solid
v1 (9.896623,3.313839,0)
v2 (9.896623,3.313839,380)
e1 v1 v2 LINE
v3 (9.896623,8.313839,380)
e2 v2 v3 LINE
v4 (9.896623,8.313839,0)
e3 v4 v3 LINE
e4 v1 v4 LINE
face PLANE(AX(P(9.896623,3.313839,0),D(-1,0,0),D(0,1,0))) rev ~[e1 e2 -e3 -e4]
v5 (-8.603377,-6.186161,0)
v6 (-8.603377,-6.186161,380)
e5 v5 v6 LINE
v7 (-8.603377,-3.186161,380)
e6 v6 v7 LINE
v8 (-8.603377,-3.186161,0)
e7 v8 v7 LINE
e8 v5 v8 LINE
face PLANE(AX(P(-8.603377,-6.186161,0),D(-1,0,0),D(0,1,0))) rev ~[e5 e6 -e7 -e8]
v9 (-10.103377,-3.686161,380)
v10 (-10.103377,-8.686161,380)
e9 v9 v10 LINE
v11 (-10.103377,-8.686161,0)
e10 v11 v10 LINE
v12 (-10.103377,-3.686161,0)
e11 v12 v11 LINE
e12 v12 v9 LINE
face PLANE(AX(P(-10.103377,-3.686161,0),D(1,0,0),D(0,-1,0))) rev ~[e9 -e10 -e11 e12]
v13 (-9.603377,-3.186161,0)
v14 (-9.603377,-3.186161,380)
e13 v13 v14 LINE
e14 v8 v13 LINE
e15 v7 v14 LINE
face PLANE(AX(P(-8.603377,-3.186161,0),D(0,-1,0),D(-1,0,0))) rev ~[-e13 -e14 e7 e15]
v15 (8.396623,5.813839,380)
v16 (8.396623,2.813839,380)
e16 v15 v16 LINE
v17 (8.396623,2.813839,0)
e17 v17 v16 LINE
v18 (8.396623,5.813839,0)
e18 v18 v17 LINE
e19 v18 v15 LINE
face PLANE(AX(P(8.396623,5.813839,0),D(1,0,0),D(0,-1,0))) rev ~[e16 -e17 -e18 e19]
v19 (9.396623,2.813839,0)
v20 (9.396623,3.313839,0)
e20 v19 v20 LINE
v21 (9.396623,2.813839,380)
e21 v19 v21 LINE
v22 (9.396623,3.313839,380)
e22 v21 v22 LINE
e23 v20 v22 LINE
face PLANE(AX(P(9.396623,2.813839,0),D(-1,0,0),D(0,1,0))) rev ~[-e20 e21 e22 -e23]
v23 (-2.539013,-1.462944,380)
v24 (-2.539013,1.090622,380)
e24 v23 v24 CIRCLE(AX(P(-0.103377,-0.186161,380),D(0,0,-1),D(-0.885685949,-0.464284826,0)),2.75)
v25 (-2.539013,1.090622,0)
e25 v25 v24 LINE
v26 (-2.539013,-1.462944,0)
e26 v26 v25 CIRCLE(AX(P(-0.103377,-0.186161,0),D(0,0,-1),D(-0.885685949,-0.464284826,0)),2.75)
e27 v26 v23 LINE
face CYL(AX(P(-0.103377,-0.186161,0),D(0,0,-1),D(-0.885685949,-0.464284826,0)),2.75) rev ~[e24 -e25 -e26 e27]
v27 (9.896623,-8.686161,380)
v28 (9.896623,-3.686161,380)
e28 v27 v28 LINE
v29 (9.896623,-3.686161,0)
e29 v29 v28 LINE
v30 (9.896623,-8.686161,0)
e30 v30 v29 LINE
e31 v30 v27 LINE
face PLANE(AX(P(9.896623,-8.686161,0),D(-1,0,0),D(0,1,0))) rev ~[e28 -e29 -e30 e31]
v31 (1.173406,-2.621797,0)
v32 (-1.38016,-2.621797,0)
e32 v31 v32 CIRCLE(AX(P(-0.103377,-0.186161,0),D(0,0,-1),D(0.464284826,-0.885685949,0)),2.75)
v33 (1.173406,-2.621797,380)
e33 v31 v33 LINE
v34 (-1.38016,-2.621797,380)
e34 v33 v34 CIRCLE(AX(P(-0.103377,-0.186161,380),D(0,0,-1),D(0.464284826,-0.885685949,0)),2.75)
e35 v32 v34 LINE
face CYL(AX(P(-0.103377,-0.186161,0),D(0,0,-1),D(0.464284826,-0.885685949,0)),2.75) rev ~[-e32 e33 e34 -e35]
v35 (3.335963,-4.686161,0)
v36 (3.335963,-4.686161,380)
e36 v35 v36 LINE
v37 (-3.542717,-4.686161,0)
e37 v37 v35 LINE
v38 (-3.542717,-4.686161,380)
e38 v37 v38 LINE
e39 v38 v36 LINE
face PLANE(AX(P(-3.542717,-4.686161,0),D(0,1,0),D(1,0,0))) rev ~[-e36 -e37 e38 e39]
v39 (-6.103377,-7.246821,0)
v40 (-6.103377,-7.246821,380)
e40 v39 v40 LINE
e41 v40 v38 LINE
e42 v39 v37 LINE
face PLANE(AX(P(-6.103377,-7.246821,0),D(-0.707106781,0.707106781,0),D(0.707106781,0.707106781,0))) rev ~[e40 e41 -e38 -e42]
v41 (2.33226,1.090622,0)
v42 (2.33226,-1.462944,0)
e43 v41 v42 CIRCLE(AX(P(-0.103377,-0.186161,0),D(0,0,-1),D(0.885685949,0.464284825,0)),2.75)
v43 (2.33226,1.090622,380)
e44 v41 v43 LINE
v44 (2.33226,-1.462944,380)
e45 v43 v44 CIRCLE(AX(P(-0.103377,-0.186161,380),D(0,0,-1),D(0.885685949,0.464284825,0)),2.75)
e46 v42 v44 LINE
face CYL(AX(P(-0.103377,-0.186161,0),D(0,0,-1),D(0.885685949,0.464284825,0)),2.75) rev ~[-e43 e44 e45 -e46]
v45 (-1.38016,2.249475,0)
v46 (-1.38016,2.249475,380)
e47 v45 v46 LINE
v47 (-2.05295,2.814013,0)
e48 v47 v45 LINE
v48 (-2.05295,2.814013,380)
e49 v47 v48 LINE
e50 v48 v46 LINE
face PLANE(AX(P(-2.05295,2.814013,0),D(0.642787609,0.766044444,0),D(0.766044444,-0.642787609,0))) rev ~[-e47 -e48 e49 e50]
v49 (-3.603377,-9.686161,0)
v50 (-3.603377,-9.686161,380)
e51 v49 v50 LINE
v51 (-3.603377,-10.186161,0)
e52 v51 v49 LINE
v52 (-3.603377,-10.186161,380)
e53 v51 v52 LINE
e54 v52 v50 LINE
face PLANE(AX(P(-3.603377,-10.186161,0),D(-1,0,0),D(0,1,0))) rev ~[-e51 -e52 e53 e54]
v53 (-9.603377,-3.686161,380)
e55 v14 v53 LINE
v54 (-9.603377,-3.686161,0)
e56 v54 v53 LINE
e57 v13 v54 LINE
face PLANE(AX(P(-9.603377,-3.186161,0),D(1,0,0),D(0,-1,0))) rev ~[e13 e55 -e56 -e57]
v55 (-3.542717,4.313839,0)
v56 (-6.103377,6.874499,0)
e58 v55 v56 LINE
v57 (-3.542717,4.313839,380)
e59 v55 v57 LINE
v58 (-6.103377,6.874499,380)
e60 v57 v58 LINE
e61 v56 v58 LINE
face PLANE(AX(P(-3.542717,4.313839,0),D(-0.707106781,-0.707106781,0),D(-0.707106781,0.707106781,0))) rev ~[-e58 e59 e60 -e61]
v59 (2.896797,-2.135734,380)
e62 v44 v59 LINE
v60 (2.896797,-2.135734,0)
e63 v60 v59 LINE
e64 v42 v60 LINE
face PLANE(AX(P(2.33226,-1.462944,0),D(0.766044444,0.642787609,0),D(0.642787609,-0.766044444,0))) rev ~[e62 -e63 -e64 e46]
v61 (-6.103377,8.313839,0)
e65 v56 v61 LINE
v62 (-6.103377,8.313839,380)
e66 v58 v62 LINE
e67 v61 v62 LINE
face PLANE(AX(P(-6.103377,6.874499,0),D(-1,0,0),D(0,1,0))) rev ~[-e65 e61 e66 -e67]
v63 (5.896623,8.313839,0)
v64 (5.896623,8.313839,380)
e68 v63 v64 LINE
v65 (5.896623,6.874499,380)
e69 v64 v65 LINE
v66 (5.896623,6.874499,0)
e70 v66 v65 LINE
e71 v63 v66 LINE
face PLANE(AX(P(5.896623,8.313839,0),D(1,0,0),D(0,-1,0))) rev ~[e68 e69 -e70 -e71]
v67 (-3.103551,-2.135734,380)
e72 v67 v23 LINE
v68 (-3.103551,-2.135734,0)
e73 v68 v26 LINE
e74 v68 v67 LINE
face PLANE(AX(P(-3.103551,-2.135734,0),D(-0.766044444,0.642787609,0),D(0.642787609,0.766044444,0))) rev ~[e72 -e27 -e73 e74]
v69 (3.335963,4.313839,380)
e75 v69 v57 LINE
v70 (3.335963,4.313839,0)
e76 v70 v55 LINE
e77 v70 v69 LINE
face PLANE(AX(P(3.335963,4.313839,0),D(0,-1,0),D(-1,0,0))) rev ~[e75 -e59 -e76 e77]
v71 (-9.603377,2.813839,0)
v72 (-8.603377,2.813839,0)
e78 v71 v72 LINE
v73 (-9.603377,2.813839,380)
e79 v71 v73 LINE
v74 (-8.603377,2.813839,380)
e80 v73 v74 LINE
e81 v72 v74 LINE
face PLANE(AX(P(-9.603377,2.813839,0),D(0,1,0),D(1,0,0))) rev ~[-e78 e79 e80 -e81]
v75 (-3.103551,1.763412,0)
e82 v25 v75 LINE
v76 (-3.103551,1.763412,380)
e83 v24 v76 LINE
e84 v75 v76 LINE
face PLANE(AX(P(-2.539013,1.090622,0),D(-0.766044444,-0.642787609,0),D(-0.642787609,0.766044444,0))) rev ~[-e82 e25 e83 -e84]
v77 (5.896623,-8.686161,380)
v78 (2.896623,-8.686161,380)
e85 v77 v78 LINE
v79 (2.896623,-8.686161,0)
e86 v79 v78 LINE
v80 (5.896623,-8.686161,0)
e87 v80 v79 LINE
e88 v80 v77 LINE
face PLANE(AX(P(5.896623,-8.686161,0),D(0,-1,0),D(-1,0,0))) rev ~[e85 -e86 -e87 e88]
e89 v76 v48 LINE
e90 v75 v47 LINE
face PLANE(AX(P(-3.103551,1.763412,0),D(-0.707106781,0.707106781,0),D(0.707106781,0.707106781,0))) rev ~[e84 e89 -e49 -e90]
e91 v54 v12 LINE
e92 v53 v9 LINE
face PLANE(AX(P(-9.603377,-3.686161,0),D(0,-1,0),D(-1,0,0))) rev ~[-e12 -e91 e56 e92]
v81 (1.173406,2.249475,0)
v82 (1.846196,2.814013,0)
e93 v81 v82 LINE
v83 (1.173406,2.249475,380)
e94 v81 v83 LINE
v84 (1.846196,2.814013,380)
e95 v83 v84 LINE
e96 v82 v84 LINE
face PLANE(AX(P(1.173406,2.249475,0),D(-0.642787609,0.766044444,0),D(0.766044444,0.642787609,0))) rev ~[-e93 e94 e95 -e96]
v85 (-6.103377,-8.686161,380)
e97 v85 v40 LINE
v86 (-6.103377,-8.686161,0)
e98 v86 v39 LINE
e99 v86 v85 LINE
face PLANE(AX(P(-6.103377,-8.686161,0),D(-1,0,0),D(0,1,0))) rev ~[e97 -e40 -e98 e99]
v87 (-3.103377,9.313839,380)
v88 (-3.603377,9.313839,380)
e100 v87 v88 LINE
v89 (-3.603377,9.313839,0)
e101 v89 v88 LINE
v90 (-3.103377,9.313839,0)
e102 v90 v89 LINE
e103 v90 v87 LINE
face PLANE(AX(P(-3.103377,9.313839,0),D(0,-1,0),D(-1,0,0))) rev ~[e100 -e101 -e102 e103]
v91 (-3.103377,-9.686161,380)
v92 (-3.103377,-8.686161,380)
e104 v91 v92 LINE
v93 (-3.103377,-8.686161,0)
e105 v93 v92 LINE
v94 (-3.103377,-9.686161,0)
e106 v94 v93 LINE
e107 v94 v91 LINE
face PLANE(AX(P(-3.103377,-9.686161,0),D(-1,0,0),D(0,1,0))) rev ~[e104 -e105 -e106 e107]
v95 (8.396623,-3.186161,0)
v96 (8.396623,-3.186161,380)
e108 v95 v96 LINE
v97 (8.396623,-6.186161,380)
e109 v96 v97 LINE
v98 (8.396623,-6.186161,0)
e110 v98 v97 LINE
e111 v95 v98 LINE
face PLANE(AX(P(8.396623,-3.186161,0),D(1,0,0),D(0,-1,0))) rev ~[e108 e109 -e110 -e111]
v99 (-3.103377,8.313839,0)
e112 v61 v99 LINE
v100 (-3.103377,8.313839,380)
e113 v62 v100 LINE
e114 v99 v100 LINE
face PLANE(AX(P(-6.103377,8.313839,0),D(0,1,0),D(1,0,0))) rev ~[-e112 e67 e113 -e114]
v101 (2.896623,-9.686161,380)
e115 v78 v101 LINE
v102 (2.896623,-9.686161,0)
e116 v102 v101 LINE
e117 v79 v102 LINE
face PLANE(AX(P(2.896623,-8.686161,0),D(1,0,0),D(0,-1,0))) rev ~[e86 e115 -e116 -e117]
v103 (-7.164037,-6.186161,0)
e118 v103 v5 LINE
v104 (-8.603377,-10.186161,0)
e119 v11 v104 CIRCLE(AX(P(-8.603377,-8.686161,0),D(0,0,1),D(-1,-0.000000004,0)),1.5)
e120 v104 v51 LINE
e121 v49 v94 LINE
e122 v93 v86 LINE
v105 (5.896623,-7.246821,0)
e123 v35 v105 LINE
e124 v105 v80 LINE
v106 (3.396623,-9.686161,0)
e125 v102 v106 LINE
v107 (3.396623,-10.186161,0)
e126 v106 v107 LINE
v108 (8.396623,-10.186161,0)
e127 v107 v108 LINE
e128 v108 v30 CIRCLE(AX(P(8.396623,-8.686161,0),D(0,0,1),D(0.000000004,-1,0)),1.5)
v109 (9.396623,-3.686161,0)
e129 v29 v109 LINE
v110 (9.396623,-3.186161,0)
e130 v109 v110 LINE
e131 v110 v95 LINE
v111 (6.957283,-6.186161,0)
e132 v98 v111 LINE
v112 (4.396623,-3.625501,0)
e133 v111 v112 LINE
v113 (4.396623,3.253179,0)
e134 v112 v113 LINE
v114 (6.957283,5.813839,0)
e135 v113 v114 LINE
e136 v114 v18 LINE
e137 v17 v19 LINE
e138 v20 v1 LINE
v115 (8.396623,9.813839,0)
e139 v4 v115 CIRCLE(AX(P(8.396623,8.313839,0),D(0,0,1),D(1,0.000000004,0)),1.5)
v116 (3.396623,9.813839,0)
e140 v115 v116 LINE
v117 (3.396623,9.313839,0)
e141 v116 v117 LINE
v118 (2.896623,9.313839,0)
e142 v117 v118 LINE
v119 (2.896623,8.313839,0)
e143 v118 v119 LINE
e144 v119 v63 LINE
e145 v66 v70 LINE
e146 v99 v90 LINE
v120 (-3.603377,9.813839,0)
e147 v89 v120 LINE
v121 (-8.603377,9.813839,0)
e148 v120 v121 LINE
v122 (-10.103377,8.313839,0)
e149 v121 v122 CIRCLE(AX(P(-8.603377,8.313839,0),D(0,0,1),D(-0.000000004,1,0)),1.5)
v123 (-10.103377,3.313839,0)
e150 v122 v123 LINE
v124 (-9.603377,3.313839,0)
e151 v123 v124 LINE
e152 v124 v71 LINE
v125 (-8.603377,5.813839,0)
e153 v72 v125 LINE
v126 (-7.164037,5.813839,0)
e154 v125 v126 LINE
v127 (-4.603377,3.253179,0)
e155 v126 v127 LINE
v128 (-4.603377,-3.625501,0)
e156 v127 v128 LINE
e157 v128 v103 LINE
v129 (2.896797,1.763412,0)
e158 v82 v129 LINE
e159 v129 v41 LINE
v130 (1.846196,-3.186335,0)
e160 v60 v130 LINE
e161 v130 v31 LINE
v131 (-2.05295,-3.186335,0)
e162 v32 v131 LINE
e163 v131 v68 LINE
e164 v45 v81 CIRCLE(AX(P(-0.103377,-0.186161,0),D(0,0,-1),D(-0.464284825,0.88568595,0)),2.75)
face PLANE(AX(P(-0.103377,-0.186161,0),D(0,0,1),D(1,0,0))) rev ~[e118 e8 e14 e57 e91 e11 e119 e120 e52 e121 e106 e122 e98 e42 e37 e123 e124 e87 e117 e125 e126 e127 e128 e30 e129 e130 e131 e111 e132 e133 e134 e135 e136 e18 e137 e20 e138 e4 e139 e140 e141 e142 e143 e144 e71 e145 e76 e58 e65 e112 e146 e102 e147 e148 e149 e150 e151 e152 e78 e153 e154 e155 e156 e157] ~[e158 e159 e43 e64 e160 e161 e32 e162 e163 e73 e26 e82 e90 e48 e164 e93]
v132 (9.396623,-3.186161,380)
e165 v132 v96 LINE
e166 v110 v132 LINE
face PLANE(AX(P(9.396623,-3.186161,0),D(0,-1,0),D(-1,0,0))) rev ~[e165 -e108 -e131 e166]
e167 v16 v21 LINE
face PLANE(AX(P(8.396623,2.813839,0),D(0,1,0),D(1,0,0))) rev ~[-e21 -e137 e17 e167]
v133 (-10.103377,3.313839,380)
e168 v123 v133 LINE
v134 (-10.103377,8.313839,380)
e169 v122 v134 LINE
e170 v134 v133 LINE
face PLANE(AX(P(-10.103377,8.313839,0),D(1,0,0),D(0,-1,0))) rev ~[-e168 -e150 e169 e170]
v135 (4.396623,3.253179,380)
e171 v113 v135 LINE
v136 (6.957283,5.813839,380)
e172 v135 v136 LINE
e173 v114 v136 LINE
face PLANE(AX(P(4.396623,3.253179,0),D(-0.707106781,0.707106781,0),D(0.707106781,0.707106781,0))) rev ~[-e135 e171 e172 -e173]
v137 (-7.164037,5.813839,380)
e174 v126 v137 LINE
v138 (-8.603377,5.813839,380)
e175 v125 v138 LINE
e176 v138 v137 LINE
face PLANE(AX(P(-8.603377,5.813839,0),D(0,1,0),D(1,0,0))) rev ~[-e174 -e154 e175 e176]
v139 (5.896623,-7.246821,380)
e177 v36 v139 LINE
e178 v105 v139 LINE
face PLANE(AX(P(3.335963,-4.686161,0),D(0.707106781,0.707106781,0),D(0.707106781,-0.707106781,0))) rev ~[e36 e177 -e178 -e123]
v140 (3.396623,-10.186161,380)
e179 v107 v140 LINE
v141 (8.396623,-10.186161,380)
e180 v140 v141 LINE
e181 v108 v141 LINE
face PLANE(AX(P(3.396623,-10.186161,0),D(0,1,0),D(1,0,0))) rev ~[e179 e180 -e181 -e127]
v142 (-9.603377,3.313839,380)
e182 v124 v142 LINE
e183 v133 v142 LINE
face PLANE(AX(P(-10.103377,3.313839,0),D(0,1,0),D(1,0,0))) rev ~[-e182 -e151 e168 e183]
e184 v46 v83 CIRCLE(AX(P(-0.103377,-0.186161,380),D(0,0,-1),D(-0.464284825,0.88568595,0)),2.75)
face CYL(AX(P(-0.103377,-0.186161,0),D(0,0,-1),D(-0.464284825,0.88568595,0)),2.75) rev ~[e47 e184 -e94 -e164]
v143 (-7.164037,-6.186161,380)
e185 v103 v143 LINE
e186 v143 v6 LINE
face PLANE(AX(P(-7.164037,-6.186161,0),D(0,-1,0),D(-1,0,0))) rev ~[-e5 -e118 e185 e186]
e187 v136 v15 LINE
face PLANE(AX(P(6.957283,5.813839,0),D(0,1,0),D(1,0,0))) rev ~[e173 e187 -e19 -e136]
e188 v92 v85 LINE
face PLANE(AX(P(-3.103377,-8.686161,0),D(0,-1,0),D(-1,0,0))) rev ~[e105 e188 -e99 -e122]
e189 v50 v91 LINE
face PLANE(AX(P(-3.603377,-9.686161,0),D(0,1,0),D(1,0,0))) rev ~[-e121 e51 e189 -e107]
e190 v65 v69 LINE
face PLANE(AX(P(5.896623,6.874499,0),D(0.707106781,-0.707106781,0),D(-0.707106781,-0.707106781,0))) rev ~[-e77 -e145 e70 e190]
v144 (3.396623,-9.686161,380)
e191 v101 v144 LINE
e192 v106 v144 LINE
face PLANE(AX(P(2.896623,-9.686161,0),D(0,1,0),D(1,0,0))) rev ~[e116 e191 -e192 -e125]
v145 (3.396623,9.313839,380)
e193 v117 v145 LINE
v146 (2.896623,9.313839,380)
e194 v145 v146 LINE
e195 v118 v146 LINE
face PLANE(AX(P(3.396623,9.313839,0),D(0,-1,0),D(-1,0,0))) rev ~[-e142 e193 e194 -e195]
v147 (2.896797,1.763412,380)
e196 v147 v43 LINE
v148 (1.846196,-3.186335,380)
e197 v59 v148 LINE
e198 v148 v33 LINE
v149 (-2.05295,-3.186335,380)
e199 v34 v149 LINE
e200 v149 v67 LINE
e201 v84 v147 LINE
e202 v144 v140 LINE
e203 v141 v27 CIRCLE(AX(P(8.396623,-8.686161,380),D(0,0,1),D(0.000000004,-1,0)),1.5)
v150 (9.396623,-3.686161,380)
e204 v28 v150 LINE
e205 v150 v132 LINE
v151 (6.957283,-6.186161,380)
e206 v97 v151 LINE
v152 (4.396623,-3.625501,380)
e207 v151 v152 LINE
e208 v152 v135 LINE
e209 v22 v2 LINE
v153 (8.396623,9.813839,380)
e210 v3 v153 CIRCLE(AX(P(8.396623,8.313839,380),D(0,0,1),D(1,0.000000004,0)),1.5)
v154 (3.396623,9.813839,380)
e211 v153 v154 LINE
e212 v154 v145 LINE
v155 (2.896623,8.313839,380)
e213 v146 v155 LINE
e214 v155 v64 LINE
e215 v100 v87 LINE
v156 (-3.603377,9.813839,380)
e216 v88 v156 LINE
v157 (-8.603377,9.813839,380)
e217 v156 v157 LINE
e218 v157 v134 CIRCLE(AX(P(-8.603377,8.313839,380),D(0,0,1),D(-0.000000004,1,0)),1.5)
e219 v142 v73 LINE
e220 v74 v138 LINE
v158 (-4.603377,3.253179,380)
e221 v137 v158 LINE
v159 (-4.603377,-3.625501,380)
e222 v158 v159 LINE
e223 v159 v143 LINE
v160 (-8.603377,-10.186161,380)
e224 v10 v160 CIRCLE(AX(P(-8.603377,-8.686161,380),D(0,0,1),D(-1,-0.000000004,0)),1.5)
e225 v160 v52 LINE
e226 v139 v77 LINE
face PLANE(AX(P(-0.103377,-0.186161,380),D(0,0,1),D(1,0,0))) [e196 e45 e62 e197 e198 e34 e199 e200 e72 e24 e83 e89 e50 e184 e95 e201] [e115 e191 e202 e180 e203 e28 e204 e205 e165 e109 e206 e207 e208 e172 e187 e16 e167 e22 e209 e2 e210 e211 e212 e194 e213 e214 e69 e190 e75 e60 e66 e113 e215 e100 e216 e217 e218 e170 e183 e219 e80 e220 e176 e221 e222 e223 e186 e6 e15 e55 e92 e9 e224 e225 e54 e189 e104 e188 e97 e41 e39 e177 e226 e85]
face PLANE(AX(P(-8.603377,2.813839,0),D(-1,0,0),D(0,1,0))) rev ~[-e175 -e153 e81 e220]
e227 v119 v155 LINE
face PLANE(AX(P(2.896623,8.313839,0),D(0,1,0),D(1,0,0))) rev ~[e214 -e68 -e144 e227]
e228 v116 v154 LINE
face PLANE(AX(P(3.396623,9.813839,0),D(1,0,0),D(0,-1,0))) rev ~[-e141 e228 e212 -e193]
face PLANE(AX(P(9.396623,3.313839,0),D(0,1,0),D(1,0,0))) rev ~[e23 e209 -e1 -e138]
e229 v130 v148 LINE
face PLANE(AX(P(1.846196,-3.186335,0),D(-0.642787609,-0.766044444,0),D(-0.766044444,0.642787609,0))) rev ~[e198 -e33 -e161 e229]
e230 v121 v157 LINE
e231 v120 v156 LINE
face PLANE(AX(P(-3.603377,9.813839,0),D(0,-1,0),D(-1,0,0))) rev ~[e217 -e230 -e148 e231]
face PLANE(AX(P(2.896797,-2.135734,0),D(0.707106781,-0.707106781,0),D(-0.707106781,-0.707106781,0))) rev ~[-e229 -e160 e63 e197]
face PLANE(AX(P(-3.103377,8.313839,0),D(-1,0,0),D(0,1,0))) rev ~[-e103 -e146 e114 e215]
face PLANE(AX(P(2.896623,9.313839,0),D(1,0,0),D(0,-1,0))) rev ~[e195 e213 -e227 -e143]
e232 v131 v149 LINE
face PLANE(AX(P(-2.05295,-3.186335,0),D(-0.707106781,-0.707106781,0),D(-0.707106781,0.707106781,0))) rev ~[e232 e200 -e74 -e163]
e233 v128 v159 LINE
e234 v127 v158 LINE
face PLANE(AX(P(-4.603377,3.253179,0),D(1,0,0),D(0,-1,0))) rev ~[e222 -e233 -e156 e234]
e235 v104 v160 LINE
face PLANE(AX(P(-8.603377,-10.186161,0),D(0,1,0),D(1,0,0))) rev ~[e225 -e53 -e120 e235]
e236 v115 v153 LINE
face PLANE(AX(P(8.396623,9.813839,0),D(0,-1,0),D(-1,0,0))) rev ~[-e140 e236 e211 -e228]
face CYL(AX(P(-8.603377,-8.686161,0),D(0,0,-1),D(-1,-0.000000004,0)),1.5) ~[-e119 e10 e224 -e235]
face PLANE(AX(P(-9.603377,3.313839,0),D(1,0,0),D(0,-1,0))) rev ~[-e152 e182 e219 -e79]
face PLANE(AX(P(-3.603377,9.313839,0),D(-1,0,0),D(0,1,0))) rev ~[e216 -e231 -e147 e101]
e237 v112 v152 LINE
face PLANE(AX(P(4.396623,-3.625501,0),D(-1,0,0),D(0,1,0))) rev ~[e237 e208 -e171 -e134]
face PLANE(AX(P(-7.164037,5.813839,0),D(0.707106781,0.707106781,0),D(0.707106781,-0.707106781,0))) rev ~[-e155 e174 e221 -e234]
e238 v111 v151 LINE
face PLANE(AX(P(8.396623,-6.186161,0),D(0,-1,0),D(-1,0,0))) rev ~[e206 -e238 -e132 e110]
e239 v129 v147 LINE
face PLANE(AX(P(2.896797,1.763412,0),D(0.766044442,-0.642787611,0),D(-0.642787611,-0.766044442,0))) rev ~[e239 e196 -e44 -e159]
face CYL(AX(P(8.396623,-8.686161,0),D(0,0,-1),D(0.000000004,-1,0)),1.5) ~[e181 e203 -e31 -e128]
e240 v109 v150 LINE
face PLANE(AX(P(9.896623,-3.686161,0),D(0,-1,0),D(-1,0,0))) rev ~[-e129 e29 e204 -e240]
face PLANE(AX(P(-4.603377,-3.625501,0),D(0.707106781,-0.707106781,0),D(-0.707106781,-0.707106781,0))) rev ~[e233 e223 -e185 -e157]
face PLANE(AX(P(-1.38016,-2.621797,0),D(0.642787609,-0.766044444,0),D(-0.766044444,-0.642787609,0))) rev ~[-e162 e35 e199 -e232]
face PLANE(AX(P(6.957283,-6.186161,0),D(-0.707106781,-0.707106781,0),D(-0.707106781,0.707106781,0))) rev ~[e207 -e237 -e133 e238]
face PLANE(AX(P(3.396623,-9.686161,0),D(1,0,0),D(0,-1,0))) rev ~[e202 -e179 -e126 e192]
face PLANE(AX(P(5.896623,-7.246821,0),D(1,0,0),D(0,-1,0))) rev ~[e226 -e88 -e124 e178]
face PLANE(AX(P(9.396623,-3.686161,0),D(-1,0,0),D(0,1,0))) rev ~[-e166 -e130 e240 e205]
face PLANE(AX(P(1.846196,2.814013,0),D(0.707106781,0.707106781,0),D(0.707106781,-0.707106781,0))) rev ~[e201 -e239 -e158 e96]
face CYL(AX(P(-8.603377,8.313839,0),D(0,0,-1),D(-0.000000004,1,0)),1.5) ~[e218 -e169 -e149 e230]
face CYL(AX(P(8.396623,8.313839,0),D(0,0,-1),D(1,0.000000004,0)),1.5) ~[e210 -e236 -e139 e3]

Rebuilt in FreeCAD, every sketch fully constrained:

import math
import FreeCAD as App
import Part
import Sketcher
from FreeCAD import Vector
Q = App.Units.Quantity

doc = App.newDocument("Part")
body = doc.addObject("PartDesign::Body", "Body")

# Sketch on XY plane
sketch1 = doc.addObject("Sketcher::SketchObject", "Sketch")
body.addObject(sketch1)
sketch1.AttachmentSupport = (doc.XY_Plane, [""])
sketch1.MapMode = "FlatFace"
sketch1.addGeometry(Part.LineSegment(Vector(9.9, -8.7, 0), Vector(9.9, -3.7, 0)), False)
sketch1.addGeometry(Part.LineSegment(Vector(9.9, -3.7, 0), Vector(9.4, -3.7, 0)), False)
sketch1.addGeometry(Part.LineSegment(Vector(9.4, -3.7, 0), Vector(9.4, -3.2, 0)), False)
sketch1.addGeometry(Part.LineSegment(Vector(9.4, -3.2, 0), Vector(8.4, -3.2, 0)), False)
sketch1.addGeometry(Part.LineSegment(Vector(8.4, -3.2, 0), Vector(8.4, -6.2, 0)), False)
sketch1.addGeometry(Part.LineSegment(Vector(8.4, -6.2, 0), Vector(7, -6.2, 0)), False)
sketch1.addGeometry(Part.LineSegment(Vector(7, -6.2, 0), Vector(4.4, -3.6, 0)), False)
sketch1.addGeometry(Part.LineSegment(Vector(4.4, -3.6, 0), Vector(4.4, 3.3, 0)), False)
sketch1.addGeometry(Part.LineSegment(Vector(4.4, 3.3, 0), Vector(7, 5.8, 0)), False)
sketch1.addGeometry(Part.LineSegment(Vector(7, 5.8, 0), Vector(8.4, 5.8, 0)), False)
sketch1.addGeometry(Part.LineSegment(Vector(8.4, 5.8, 0), Vector(8.4, 2.8, 0)), False)
sketch1.addGeometry(Part.LineSegment(Vector(8.4, 2.8, 0), Vector(9.4, 2.8, 0)), False)
sketch1.addGeometry(Part.LineSegment(Vector(9.4, 2.8, 0), Vector(9.4, 3.3, 0)), False)
sketch1.addGeometry(Part.LineSegment(Vector(9.4, 3.3, 0), Vector(9.9, 3.3, 0)), False)
sketch1.addGeometry(Part.LineSegment(Vector(9.9, 3.3, 0), Vector(9.9, 8.3, 0)), False)
sketch1.addGeometry(Part.ArcOfCircle(Part.Circle(Vector(8.4, 8.3, 0), Vector(0, 0, 1), 1.5), math.radians(0), math.radians(90)), False)
sketch1.addGeometry(Part.LineSegment(Vector(8.4, 9.8, 0), Vector(3.4, 9.8, 0)), False)
sketch1.addGeometry(Part.LineSegment(Vector(3.4, 9.8, 0), Vector(3.4, 9.3, 0)), False)
sketch1.addGeometry(Part.LineSegment(Vector(3.4, 9.3, 0), Vector(2.9, 9.3, 0)), False)
sketch1.addGeometry(Part.LineSegment(Vector(2.9, 9.3, 0), Vector(2.9, 8.3, 0)), False)
sketch1.addGeometry(Part.LineSegment(Vector(2.9, 8.3, 0), Vector(5.9, 8.3, 0)), False)
sketch1.addGeometry(Part.LineSegment(Vector(5.9, 8.3, 0), Vector(5.9, 6.9, 0)), False)
sketch1.addGeometry(Part.LineSegment(Vector(5.9, 6.9, 0), Vector(3.3, 4.3, 0)), False)
sketch1.addGeometry(Part.LineSegment(Vector(3.3, 4.3, 0), Vector(-3.5, 4.3, 0)), False)
sketch1.addGeometry(Part.LineSegment(Vector(-3.5, 4.3, 0), Vector(-6.1, 6.9, 0)), False)
sketch1.addGeometry(Part.LineSegment(Vector(-6.1, 6.9, 0), Vector(-6.1, 8.3, 0)), False)
sketch1.addGeometry(Part.LineSegment(Vector(-6.1, 8.3, 0), Vector(-3.1, 8.3, 0)), False)
sketch1.addGeometry(Part.LineSegment(Vector(-3.1, 8.3, 0), Vector(-3.1, 9.3, 0)), False)
sketch1.addGeometry(Part.LineSegment(Vector(-3.1, 9.3, 0), Vector(-3.6, 9.3, 0)), False)
sketch1.addGeometry(Part.LineSegment(Vector(-3.6, 9.3, 0), Vector(-3.6, 9.8, 0)), False)
sketch1.addGeometry(Part.LineSegment(Vector(-3.6, 9.8, 0), Vector(-8.6, 9.8, 0)), False)
sketch1.addGeometry(Part.ArcOfCircle(Part.Circle(Vector(-8.6, 8.3, 0), Vector(0, 0, 1), 1.5), math.radians(90), math.radians(180)), False)
sketch1.addGeometry(Part.LineSegment(Vector(-10.1, 8.3, 0), Vector(-10.1, 3.3, 0)), False)
sketch1.addGeometry(Part.LineSegment(Vector(-10.1, 3.3, 0), Vector(-9.6, 3.3, 0)), False)
sketch1.addGeometry(Part.LineSegment(Vector(-9.6, 3.3, 0), Vector(-9.6, 2.8, 0)), False)
sketch1.addGeometry(Part.LineSegment(Vector(-9.6, 2.8, 0), Vector(-8.6, 2.8, 0)), False)
sketch1.addGeometry(Part.LineSegment(Vector(-8.6, 2.8, 0), Vector(-8.6, 5.8, 0)), False)
sketch1.addGeometry(Part.LineSegment(Vector(-8.6, 5.8, 0), Vector(-7.2, 5.8, 0)), False)
sketch1.addGeometry(Part.LineSegment(Vector(-7.2, 5.8, 0), Vector(-4.6, 3.3, 0)), False)
sketch1.addGeometry(Part.LineSegment(Vector(-4.6, 3.3, 0), Vector(-4.6, -3.6, 0)), False)
sketch1.addGeometry(Part.LineSegment(Vector(-4.6, -3.6, 0), Vector(-7.2, -6.2, 0)), False)
sketch1.addGeometry(Part.LineSegment(Vector(-7.2, -6.2, 0), Vector(-8.6, -6.2, 0)), False)
sketch1.addGeometry(Part.LineSegment(Vector(-8.6, -6.2, 0), Vector(-8.6, -3.2, 0)), False)
sketch1.addGeometry(Part.LineSegment(Vector(-8.6, -3.2, 0), Vector(-9.6, -3.2, 0)), False)
sketch1.addGeometry(Part.LineSegment(Vector(-9.6, -3.2, 0), Vector(-9.6, -3.7, 0)), False)
sketch1.addGeometry(Part.LineSegment(Vector(-9.6, -3.7, 0), Vector(-10.1, -3.7, 0)), False)
sketch1.addGeometry(Part.LineSegment(Vector(-10.1, -3.7, 0), Vector(-10.1, -8.7, 0)), False)
sketch1.addGeometry(Part.ArcOfCircle(Part.Circle(Vector(-8.6, -8.7, 0), Vector(0, 0, 1), 1.5), math.radians(-180), math.radians(-90)), False)
sketch1.addGeometry(Part.LineSegment(Vector(-8.6, -10.2, 0), Vector(-3.6, -10.2, 0)), False)
sketch1.addGeometry(Part.LineSegment(Vector(-3.6, -10.2, 0), Vector(-3.6, -9.7, 0)), False)
sketch1.addGeometry(Part.LineSegment(Vector(-3.6, -9.7, 0), Vector(-3.1, -9.7, 0)), False)
sketch1.addGeometry(Part.LineSegment(Vector(-3.1, -9.7, 0), Vector(-3.1, -8.7, 0)), False)
sketch1.addGeometry(Part.LineSegment(Vector(-3.1, -8.7, 0), Vector(-6.1, -8.7, 0)), False)
sketch1.addGeometry(Part.LineSegment(Vector(-6.1, -8.7, 0), Vector(-6.1, -7.2, 0)), False)
sketch1.addGeometry(Part.LineSegment(Vector(-6.1, -7.2, 0), Vector(-3.5, -4.7, 0)), False)
sketch1.addGeometry(Part.LineSegment(Vector(-3.5, -4.7, 0), Vector(3.3, -4.7, 0)), False)
sketch1.addGeometry(Part.LineSegment(Vector(3.3, -4.7, 0), Vector(5.9, -7.2, 0)), False)
sketch1.addGeometry(Part.LineSegment(Vector(5.9, -7.2, 0), Vector(5.9, -8.7, 0)), False)
sketch1.addGeometry(Part.LineSegment(Vector(5.9, -8.7, 0), Vector(2.9, -8.7, 0)), False)
sketch1.addGeometry(Part.LineSegment(Vector(2.9, -8.7, 0), Vector(2.9, -9.7, 0)), False)
sketch1.addGeometry(Part.LineSegment(Vector(2.9, -9.7, 0), Vector(3.4, -9.7, 0)), False)
sketch1.addGeometry(Part.LineSegment(Vector(3.4, -9.7, 0), Vector(3.4, -10.2, 0)), False)
sketch1.addGeometry(Part.LineSegment(Vector(3.4, -10.2, 0), Vector(8.4, -10.2, 0)), False)
sketch1.addGeometry(Part.ArcOfCircle(Part.Circle(Vector(8.4, -8.7, 0), Vector(0, 0, 1), 1.5), math.radians(-90), math.radians(0)), False)
sketch1.addGeometry(Part.ArcOfCircle(Part.Circle(Vector(-0.1, -0.2, 0), Vector(0, 0, 1), 2.7), math.radians(152), math.radians(208)), False)
sketch1.addGeometry(Part.LineSegment(Vector(-2.5, 1.1, 0), Vector(-3.1, 1.8, 0)), False)
sketch1.addGeometry(Part.LineSegment(Vector(-3.1, 1.8, 0), Vector(-2.1, 2.8, 0)), False)
sketch1.addGeometry(Part.LineSegment(Vector(-2.1, 2.8, 0), Vector(-1.4, 2.2, 0)), False)
sketch1.addGeometry(Part.ArcOfCircle(Part.Circle(Vector(-0.1, -0.2, 0), Vector(0, 0, 1), 2.7), math.radians(62), math.radians(118)), False)
sketch1.addGeometry(Part.LineSegment(Vector(1.2, 2.2, 0), Vector(1.8, 2.8, 0)), False)
sketch1.addGeometry(Part.LineSegment(Vector(1.8, 2.8, 0), Vector(2.9, 1.8, 0)), False)
sketch1.addGeometry(Part.LineSegment(Vector(2.9, 1.8, 0), Vector(2.3, 1.1, 0)), False)
sketch1.addGeometry(Part.ArcOfCircle(Part.Circle(Vector(-0.1, -0.2, 0), Vector(0, 0, 1), 2.7), math.radians(-28), math.radians(28)), False)
sketch1.addGeometry(Part.LineSegment(Vector(2.3, -1.5, 0), Vector(2.9, -2.1, 0)), False)
sketch1.addGeometry(Part.LineSegment(Vector(2.9, -2.1, 0), Vector(1.8, -3.2, 0)), False)
sketch1.addGeometry(Part.LineSegment(Vector(1.8, -3.2, 0), Vector(1.2, -2.6, 0)), False)
sketch1.addGeometry(Part.ArcOfCircle(Part.Circle(Vector(-0.1, -0.2, 0), Vector(0, 0, 1), 2.8), math.radians(-118), math.radians(-62)), False)
sketch1.addGeometry(Part.LineSegment(Vector(-1.4, -2.6, 0), Vector(-2.1, -3.2, 0)), False)
sketch1.addGeometry(Part.LineSegment(Vector(-2.1, -3.2, 0), Vector(-3.1, -2.1, 0)), False)
sketch1.addGeometry(Part.LineSegment(Vector(-3.1, -2.1, 0), Vector(-2.5, -1.5, 0)), False)
sketch1.addConstraint(Sketcher.Constraint("Coincident", 0, 2, 1, 1))
sketch1.addConstraint(Sketcher.Constraint("Coincident", 1, 2, 2, 1))
sketch1.addConstraint(Sketcher.Constraint("Coincident", 2, 2, 3, 1))
sketch1.addConstraint(Sketcher.Constraint("Coincident", 3, 2, 4, 1))
sketch1.addConstraint(Sketcher.Constraint("Coincident", 4, 2, 5, 1))
sketch1.addConstraint(Sketcher.Constraint("Coincident", 5, 2, 6, 1))
sketch1.addConstraint(Sketcher.Constraint("Coincident", 6, 2, 7, 1))
sketch1.addConstraint(Sketcher.Constraint("Coincident", 7, 2, 8, 1))
sketch1.addConstraint(Sketcher.Constraint("Coincident", 8, 2, 9, 1))
sketch1.addConstraint(Sketcher.Constraint("Coincident", 9, 2, 10, 1))
sketch1.addConstraint(Sketcher.Constraint("Coincident", 10, 2, 11, 1))
sketch1.addConstraint(Sketcher.Constraint("Coincident", 11, 2, 12, 1))
sketch1.addConstraint(Sketcher.Constraint("Coincident", 12, 2, 13, 1))
sketch1.addConstraint(Sketcher.Constraint("Coincident", 13, 2, 14, 1))
sketch1.addConstraint(Sketcher.Constraint("Tangent", 14, 2, 15, 1))
sketch1.addConstraint(Sketcher.Constraint("Tangent", 15, 2, 16, 1))
sketch1.addConstraint(Sketcher.Constraint("Coincident", 16, 2, 17, 1))
sketch1.addConstraint(Sketcher.Constraint("Coincident", 17, 2, 18, 1))
sketch1.addConstraint(Sketcher.Constraint("Coincident", 18, 2, 19, 1))
sketch1.addConstraint(Sketcher.Constraint("Coincident", 19, 2, 20, 1))
sketch1.addConstraint(Sketcher.Constraint("Coincident", 20, 2, 21, 1))
sketch1.addConstraint(Sketcher.Constraint("Coincident", 21, 2, 22, 1))
sketch1.addConstraint(Sketcher.Constraint("Coincident", 22, 2, 23, 1))
sketch1.addConstraint(Sketcher.Constraint("Coincident", 23, 2, 24, 1))
sketch1.addConstraint(Sketcher.Constraint("Coincident", 24, 2, 25, 1))
sketch1.addConstraint(Sketcher.Constraint("Coincident", 25, 2, 26, 1))
sketch1.addConstraint(Sketcher.Constraint("Coincident", 26, 2, 27, 1))
sketch1.addConstraint(Sketcher.Constraint("Coincident", 27, 2, 28, 1))
sketch1.addConstraint(Sketcher.Constraint("Coincident", 28, 2, 29, 1))
sketch1.addConstraint(Sketcher.Constraint("Coincident", 29, 2, 30, 1))
sketch1.addConstraint(Sketcher.Constraint("Tangent", 30, 2, 31, 1))
sketch1.addConstraint(Sketcher.Constraint("Tangent", 31, 2, 32, 1))
sketch1.addConstraint(Sketcher.Constraint("Coincident", 32, 2, 33, 1))
sketch1.addConstraint(Sketcher.Constraint("Coincident", 33, 2, 34, 1))
sketch1.addConstraint(Sketcher.Constraint("Coincident", 34, 2, 35, 1))
sketch1.addConstraint(Sketcher.Constraint("Coincident", 35, 2, 36, 1))
sketch1.addConstraint(Sketcher.Constraint("Coincident", 36, 2, 37, 1))
sketch1.addConstraint(Sketcher.Constraint("Coincident", 37, 2, 38, 1))
sketch1.addConstraint(Sketcher.Constraint("Coincident", 38, 2, 39, 1))
sketch1.addConstraint(Sketcher.Constraint("Coincident", 39, 2, 40, 1))
sketch1.addConstraint(Sketcher.Constraint("Coincident", 40, 2, 41, 1))
sketch1.addConstraint(Sketcher.Constraint("Coincident", 41, 2, 42, 1))
sketch1.addConstraint(Sketcher.Constraint("Coincident", 42, 2, 43, 1))
sketch1.addConstraint(Sketcher.Constraint("Coincident", 43, 2, 44, 1))
sketch1.addConstraint(Sketcher.Constraint("Coincident", 44, 2, 45, 1))
sketch1.addConstraint(Sketcher.Constraint("Coincident", 45, 2, 46, 1))
sketch1.addConstraint(Sketcher.Constraint("Tangent", 46, 2, 47, 1))
sketch1.addConstraint(Sketcher.Constraint("Tangent", 47, 2, 48, 1))
sketch1.addConstraint(Sketcher.Constraint("Coincident", 48, 2, 49, 1))
sketch1.addConstraint(Sketcher.Constraint("Coincident", 49, 2, 50, 1))
sketch1.addConstraint(Sketcher.Constraint("Coincident", 50, 2, 51, 1))
sketch1.addConstraint(Sketcher.Constraint("Coincident", 51, 2, 52, 1))
sketch1.addConstraint(Sketcher.Constraint("Coincident", 52, 2, 53, 1))
sketch1.addConstraint(Sketcher.Constraint("Coincident", 53, 2, 54, 1))
sketch1.addConstraint(Sketcher.Constraint("Coincident", 54, 2, 55, 1))
sketch1.addConstraint(Sketcher.Constraint("Coincident", 55, 2, 56, 1))
sketch1.addConstraint(Sketcher.Constraint("Coincident", 56, 2, 57, 1))
sketch1.addConstraint(Sketcher.Constraint("Coincident", 57, 2, 58, 1))
sketch1.addConstraint(Sketcher.Constraint("Coincident", 58, 2, 59, 1))
sketch1.addConstraint(Sketcher.Constraint("Coincident", 59, 2, 60, 1))
sketch1.addConstraint(Sketcher.Constraint("Coincident", 60, 2, 61, 1))
sketch1.addConstraint(Sketcher.Constraint("Coincident", 61, 2, 62, 1))
sketch1.addConstraint(Sketcher.Constraint("Tangent", 62, 2, 63, 1))
sketch1.addConstraint(Sketcher.Constraint("Tangent", 63, 2, 0, 1))
sketch1.addConstraint(Sketcher.Constraint("Coincident", 64, 1, 65, 1))
sketch1.addConstraint(Sketcher.Constraint("Coincident", 65, 2, 66, 1))
sketch1.addConstraint(Sketcher.Constraint("Coincident", 66, 2, 67, 1))
sketch1.addConstraint(Sketcher.Constraint("Coincident", 67, 2, 68, 2))
sketch1.addConstraint(Sketcher.Constraint("Coincident", 68, 1, 69, 1))
sketch1.addConstraint(Sketcher.Constraint("Coincident", 69, 2, 70, 1))
sketch1.addConstraint(Sketcher.Constraint("Coincident", 70, 2, 71, 1))
sketch1.addConstraint(Sketcher.Constraint("Coincident", 71, 2, 72, 2))
sketch1.addConstraint(Sketcher.Constraint("Coincident", 72, 1, 73, 1))
sketch1.addConstraint(Sketcher.Constraint("Coincident", 73, 2, 74, 1))
sketch1.addConstraint(Sketcher.Constraint("Coincident", 74, 2, 75, 1))
sketch1.addConstraint(Sketcher.Constraint("Coincident", 75, 2, 76, 2))
sketch1.addConstraint(Sketcher.Constraint("Coincident", 76, 1, 77, 1))
sketch1.addConstraint(Sketcher.Constraint("Coincident", 77, 2, 78, 1))
sketch1.addConstraint(Sketcher.Constraint("Coincident", 78, 2, 79, 1))
sketch1.addConstraint(Sketcher.Constraint("Coincident", 79, 2, 64, 2))
sketch1.addConstraint(Sketcher.Constraint("Vertical", 0))
sketch1.addConstraint(Sketcher.Constraint("Horizontal", 1))
sketch1.addConstraint(Sketcher.Constraint("Vertical", 2))
sketch1.addConstraint(Sketcher.Constraint("Horizontal", 3))
sketch1.addConstraint(Sketcher.Constraint("Vertical", 4))
sketch1.addConstraint(Sketcher.Constraint("Horizontal", 5))
sketch1.addConstraint(Sketcher.Constraint("Vertical", 7))
sketch1.addConstraint(Sketcher.Constraint("Horizontal", 9))
sketch1.addConstraint(Sketcher.Constraint("Vertical", 10))
sketch1.addConstraint(Sketcher.Constraint("Horizontal", 11))
sketch1.addConstraint(Sketcher.Constraint("Vertical", 12))
sketch1.addConstraint(Sketcher.Constraint("Horizontal", 13))
sketch1.addConstraint(Sketcher.Constraint("Vertical", 14))
sketch1.addConstraint(Sketcher.Constraint("Horizontal", 16))
sketch1.addConstraint(Sketcher.Constraint("Vertical", 17))
sketch1.addConstraint(Sketcher.Constraint("Horizontal", 18))
sketch1.addConstraint(Sketcher.Constraint("Vertical", 19))
sketch1.addConstraint(Sketcher.Constraint("Horizontal", 20))
sketch1.addConstraint(Sketcher.Constraint("Vertical", 21))
sketch1.addConstraint(Sketcher.Constraint("Horizontal", 23))
sketch1.addConstraint(Sketcher.Constraint("Vertical", 25))
sketch1.addConstraint(Sketcher.Constraint("Horizontal", 26))
sketch1.addConstraint(Sketcher.Constraint("Vertical", 27))
sketch1.addConstraint(Sketcher.Constraint("Horizontal", 28))
sketch1.addConstraint(Sketcher.Constraint("Vertical", 29))
sketch1.addConstraint(Sketcher.Constraint("Horizontal", 30))
sketch1.addConstraint(Sketcher.Constraint("Vertical", 32))
sketch1.addConstraint(Sketcher.Constraint("Horizontal", 33))
sketch1.addConstraint(Sketcher.Constraint("Vertical", 34))
sketch1.addConstraint(Sketcher.Constraint("Horizontal", 35))
sketch1.addConstraint(Sketcher.Constraint("Vertical", 36))
sketch1.addConstraint(Sketcher.Constraint("Horizontal", 37))
sketch1.addConstraint(Sketcher.Constraint("Vertical", 39))
sketch1.addConstraint(Sketcher.Constraint("Horizontal", 41))
sketch1.addConstraint(Sketcher.Constraint("Vertical", 42))
sketch1.addConstraint(Sketcher.Constraint("Horizontal", 43))
sketch1.addConstraint(Sketcher.Constraint("Vertical", 44))
sketch1.addConstraint(Sketcher.Constraint("Horizontal", 45))
sketch1.addConstraint(Sketcher.Constraint("Vertical", 46))
sketch1.addConstraint(Sketcher.Constraint("Horizontal", 48))
sketch1.addConstraint(Sketcher.Constraint("Vertical", 49))
sketch1.addConstraint(Sketcher.Constraint("Horizontal", 50))
sketch1.addConstraint(Sketcher.Constraint("Vertical", 51))
sketch1.addConstraint(Sketcher.Constraint("Horizontal", 52))
sketch1.addConstraint(Sketcher.Constraint("Vertical", 53))
sketch1.addConstraint(Sketcher.Constraint("Horizontal", 55))
sketch1.addConstraint(Sketcher.Constraint("Vertical", 57))
sketch1.addConstraint(Sketcher.Constraint("Horizontal", 58))
sketch1.addConstraint(Sketcher.Constraint("Vertical", 59))
sketch1.addConstraint(Sketcher.Constraint("Horizontal", 60))
sketch1.addConstraint(Sketcher.Constraint("Vertical", 61))
sketch1.addConstraint(Sketcher.Constraint("Horizontal", 62))
sketch1.addConstraint(Sketcher.Constraint("Coincident", 68, 3, 64, 3))
sketch1.addConstraint(Sketcher.Constraint("Coincident", 72, 3, 64, 3))
sketch1.addConstraint(Sketcher.Constraint("Coincident", 76, 3, 64, 3))
sketch1.addConstraint(Sketcher.Constraint("Equal", 15, 31))
sketch1.addConstraint(Sketcher.Constraint("Equal", 31, 47))
sketch1.addConstraint(Sketcher.Constraint("Equal", 47, 63))
sketch1.addConstraint(Sketcher.Constraint("Equal", 64, 68))
sketch1.addConstraint(Sketcher.Constraint("Equal", 68, 72))
sketch1.addConstraint(Sketcher.Constraint("Equal", 72, 76))
sketch1.addConstraint(Sketcher.Constraint("Perpendicular", 6, 8))
sketch1.addConstraint(Sketcher.Constraint("Parallel", 8, 22))
sketch1.addConstraint(Sketcher.Constraint("Perpendicular", 22, 24))
sketch1.addConstraint(Sketcher.Constraint("Parallel", 24, 38))
sketch1.addConstraint(Sketcher.Constraint("Perpendicular", 38, 40))
sketch1.addConstraint(Sketcher.Constraint("Parallel", 40, 54))
sketch1.addConstraint(Sketcher.Constraint("Perpendicular", 54, 56))
sketch1.addConstraint(Sketcher.Constraint("Perpendicular", 56, 66))
sketch1.addConstraint(Sketcher.Constraint("Perpendicular", 65, 69))
sketch1.addConstraint(Sketcher.Constraint("Perpendicular", 66, 70))
sketch1.addConstraint(Sketcher.Constraint("Perpendicular", 67, 71))
sketch1.addConstraint(Sketcher.Constraint("Perpendicular", 69, 73))
sketch1.addConstraint(Sketcher.Constraint("Perpendicular", 70, 74))
sketch1.addConstraint(Sketcher.Constraint("Perpendicular", 71, 75))
sketch1.addConstraint(Sketcher.Constraint("Perpendicular", 73, 77))
sketch1.addConstraint(Sketcher.Constraint("Perpendicular", 74, 78))
sketch1.addConstraint(Sketcher.Constraint("Perpendicular", 75, 79))
sketch1.addConstraint(Sketcher.Constraint("Horizontal", 15, 3, 31, 3))
sketch1.addConstraint(Sketcher.Constraint("Horizontal", 47, 3, 63, 3))
sketch1.addConstraint(Sketcher.Constraint("Horizontal", 14, 2, 19, 2))
sketch1.addConstraint(Sketcher.Constraint("Horizontal", 21, 2, 24, 2))
sketch1.addConstraint(Sketcher.Constraint("Horizontal", 20, 2, 25, 2))
sketch1.addConstraint(Sketcher.Constraint("Horizontal", 18, 2, 27, 2))
sketch1.addConstraint(Sketcher.Constraint("Horizontal", 13, 2, 32, 2))
sketch1.addConstraint(Sketcher.Constraint("Horizontal", 11, 2, 34, 2))
sketch1.addConstraint(Sketcher.Constraint("Horizontal", 9, 2, 36, 2))
sketch1.addConstraint(Sketcher.Constraint("Horizontal", 7, 2, 38, 2))
sketch1.addConstraint(Sketcher.Constraint("Horizontal", 6, 2, 39, 2))
sketch1.addConstraint(Sketcher.Constraint("Horizontal", 5, 2, 40, 2))
sketch1.addConstraint(Sketcher.Constraint("Horizontal", 3, 2, 42, 2))
sketch1.addConstraint(Sketcher.Constraint("Horizontal", 1, 2, 44, 2))
sketch1.addConstraint(Sketcher.Constraint("Horizontal", 46, 2, 51, 2))
sketch1.addConstraint(Sketcher.Constraint("Horizontal", 53, 2, 56, 2))
sketch1.addConstraint(Sketcher.Constraint("Horizontal", 52, 2, 57, 2))
sketch1.addConstraint(Sketcher.Constraint("Horizontal", 50, 2, 59, 2))
sketch1.addConstraint(Sketcher.Constraint("Horizontal", 67, 2, 68, 1))
sketch1.addConstraint(Sketcher.Constraint("Horizontal", 66, 2, 69, 2))
sketch1.addConstraint(Sketcher.Constraint("Horizontal", 65, 2, 70, 2))
sketch1.addConstraint(Sketcher.Constraint("Horizontal", 64, 1, 71, 2))
sketch1.addConstraint(Sketcher.Constraint("Horizontal", 75, 2, 76, 1))
sketch1.addConstraint(Sketcher.Constraint("Horizontal", 74, 2, 77, 2))
sketch1.addConstraint(Sketcher.Constraint("Horizontal", 73, 2, 78, 2))
sketch1.addConstraint(Sketcher.Constraint("Vertical", 31, 3, 47, 3))
sketch1.addConstraint(Sketcher.Constraint("Vertical", 15, 3, 63, 3))
sketch1.addConstraint(Sketcher.Constraint("Vertical", 63, 3, 3, 2))
sketch1.addConstraint(Sketcher.Constraint("Vertical", 5, 2, 8, 2))
sketch1.addConstraint(Sketcher.Constraint("Vertical", 4, 2, 9, 2))
sketch1.addConstraint(Sketcher.Constraint("Vertical", 2, 2, 11, 2))
sketch1.addConstraint(Sketcher.Constraint("Vertical", 30, 2, 35, 2))
sketch1.addConstraint(Sketcher.Constraint("Vertical", 37, 2, 40, 2))
sketch1.addConstraint(Sketcher.Constraint("Vertical", 36, 2, 41, 2))
sketch1.addConstraint(Sketcher.Constraint("Vertical", 34, 2, 43, 2))
sketch1.addConstraint(Sketcher.Constraint("Vertical", 29, 2, 48, 2))
sketch1.addConstraint(Sketcher.Constraint("Vertical", 27, 2, 50, 2))
sketch1.addConstraint(Sketcher.Constraint("Vertical", 25, 2, 52, 2))
sketch1.addConstraint(Sketcher.Constraint("Vertical", 23, 2, 54, 2))
sketch1.addConstraint(Sketcher.Constraint("Vertical", 22, 2, 55, 2))
sketch1.addConstraint(Sketcher.Constraint("Vertical", 19, 2, 58, 2))
sketch1.addConstraint(Sketcher.Constraint("Vertical", 17, 2, 60, 2))
sketch1.addConstraint(Sketcher.Constraint("Vertical", 71, 2, 72, 1))
sketch1.addConstraint(Sketcher.Constraint("Vertical", 70, 2, 73, 2))
sketch1.addConstraint(Sketcher.Constraint("Vertical", 69, 2, 74, 2))
sketch1.addConstraint(Sketcher.Constraint("Equal", 13, 18))
sketch1.addConstraint(Sketcher.Constraint("Equal", 20, 26))
sketch1.addConstraint(Sketcher.Constraint("Equal", 18, 28))
sketch1.addConstraint(Sketcher.Constraint("Equal", 16, 30))
sketch1.addConstraint(Sketcher.Constraint("Equal", 28, 33))
sketch1.addConstraint(Sketcher.Constraint("Equal", 9, 37))
sketch1.addConstraint(Sketcher.Constraint("Equal", 62, 0))
sketch1.addConstraint(Sketcher.Constraint("Equal", 60, 2))
sketch1.addConstraint(Sketcher.Constraint("Equal", 58, 4))
sketch1.addConstraint(Sketcher.Constraint("Equal", 55, 7))
sketch1.addConstraint(Sketcher.Constraint("Equal", 4, 10))
sketch1.addConstraint(Sketcher.Constraint("Equal", 2, 12))
sketch1.addConstraint(Sketcher.Constraint("Equal", 0, 14))
sketch1.addConstraint(Sketcher.Constraint("Equal", 12, 17))
sketch1.addConstraint(Sketcher.Constraint("Equal", 41, 21))
sketch1.addConstraint(Sketcher.Constraint("Equal", 44, 49))
sketch1.addConstraint(Sketcher.Constraint("Equal", 25, 53))
sketch1.addConstraint(Sketcher.Constraint("Equal", 8, 22))
sketch1.addConstraint(Sketcher.Constraint("Equal", 65, 67))
sketch1.addConstraint(Sketcher.Constraint("Radius", 15, 1.5))
sketch1.addConstraint(Sketcher.Constraint("DistanceX", 3, 2, 3, 1, 1.0))
sketch1.addConstraint(Sketcher.Constraint("DistanceX", 16, 2, 16, 1, 5.0))
sketch1.addConstraint(Sketcher.Constraint("DistanceX", 20, 1, 20, 2, 3.0))
sketch1.addConstraint(Sketcher.Constraint("Angle", 65, Q("130 deg")))
sketch1.addConstraint(Sketcher.Constraint("Radius", 64, 2.75))
sketch1.addConstraint(Sketcher.Constraint("DistanceX", 5, 2, 5, 1, 1.43934))
sketch1.addConstraint(Sketcher.Constraint("DistanceX", 23, 2, 23, 1, 6.87868))
sketch1.addConstraint(Sketcher.Constraint("DistanceY", 6, 2, -1, 1, 3.625501))
sketch1.addConstraint(Sketcher.Constraint("DistanceY", -1, 1, 21, 2, 6.874499))
sketch1.addConstraint(Sketcher.Constraint("DistanceY", 64, 3, -1, 1, 0.186161))
sketch1.addConstraint(Sketcher.Constraint("DistanceX", 65, 2, -1, 1, 3.103551))
sketch1.addConstraint(Sketcher.Constraint("DistanceX", 66, 2, -1, 1, 2.05295))
sketch1.addConstraint(Sketcher.Constraint("DistanceX", 67, 2, -1, 1, 1.38016))
sketch1.addConstraint(Sketcher.Constraint("DistanceX", -1, 1, 15, 3, 8.396623))
pad1 = doc.addObject("PartDesign::Pad", "Pad")
body.addObject(pad1)
pad1.Profile = sketch1
pad1.Length = 380

doc.recompute()
